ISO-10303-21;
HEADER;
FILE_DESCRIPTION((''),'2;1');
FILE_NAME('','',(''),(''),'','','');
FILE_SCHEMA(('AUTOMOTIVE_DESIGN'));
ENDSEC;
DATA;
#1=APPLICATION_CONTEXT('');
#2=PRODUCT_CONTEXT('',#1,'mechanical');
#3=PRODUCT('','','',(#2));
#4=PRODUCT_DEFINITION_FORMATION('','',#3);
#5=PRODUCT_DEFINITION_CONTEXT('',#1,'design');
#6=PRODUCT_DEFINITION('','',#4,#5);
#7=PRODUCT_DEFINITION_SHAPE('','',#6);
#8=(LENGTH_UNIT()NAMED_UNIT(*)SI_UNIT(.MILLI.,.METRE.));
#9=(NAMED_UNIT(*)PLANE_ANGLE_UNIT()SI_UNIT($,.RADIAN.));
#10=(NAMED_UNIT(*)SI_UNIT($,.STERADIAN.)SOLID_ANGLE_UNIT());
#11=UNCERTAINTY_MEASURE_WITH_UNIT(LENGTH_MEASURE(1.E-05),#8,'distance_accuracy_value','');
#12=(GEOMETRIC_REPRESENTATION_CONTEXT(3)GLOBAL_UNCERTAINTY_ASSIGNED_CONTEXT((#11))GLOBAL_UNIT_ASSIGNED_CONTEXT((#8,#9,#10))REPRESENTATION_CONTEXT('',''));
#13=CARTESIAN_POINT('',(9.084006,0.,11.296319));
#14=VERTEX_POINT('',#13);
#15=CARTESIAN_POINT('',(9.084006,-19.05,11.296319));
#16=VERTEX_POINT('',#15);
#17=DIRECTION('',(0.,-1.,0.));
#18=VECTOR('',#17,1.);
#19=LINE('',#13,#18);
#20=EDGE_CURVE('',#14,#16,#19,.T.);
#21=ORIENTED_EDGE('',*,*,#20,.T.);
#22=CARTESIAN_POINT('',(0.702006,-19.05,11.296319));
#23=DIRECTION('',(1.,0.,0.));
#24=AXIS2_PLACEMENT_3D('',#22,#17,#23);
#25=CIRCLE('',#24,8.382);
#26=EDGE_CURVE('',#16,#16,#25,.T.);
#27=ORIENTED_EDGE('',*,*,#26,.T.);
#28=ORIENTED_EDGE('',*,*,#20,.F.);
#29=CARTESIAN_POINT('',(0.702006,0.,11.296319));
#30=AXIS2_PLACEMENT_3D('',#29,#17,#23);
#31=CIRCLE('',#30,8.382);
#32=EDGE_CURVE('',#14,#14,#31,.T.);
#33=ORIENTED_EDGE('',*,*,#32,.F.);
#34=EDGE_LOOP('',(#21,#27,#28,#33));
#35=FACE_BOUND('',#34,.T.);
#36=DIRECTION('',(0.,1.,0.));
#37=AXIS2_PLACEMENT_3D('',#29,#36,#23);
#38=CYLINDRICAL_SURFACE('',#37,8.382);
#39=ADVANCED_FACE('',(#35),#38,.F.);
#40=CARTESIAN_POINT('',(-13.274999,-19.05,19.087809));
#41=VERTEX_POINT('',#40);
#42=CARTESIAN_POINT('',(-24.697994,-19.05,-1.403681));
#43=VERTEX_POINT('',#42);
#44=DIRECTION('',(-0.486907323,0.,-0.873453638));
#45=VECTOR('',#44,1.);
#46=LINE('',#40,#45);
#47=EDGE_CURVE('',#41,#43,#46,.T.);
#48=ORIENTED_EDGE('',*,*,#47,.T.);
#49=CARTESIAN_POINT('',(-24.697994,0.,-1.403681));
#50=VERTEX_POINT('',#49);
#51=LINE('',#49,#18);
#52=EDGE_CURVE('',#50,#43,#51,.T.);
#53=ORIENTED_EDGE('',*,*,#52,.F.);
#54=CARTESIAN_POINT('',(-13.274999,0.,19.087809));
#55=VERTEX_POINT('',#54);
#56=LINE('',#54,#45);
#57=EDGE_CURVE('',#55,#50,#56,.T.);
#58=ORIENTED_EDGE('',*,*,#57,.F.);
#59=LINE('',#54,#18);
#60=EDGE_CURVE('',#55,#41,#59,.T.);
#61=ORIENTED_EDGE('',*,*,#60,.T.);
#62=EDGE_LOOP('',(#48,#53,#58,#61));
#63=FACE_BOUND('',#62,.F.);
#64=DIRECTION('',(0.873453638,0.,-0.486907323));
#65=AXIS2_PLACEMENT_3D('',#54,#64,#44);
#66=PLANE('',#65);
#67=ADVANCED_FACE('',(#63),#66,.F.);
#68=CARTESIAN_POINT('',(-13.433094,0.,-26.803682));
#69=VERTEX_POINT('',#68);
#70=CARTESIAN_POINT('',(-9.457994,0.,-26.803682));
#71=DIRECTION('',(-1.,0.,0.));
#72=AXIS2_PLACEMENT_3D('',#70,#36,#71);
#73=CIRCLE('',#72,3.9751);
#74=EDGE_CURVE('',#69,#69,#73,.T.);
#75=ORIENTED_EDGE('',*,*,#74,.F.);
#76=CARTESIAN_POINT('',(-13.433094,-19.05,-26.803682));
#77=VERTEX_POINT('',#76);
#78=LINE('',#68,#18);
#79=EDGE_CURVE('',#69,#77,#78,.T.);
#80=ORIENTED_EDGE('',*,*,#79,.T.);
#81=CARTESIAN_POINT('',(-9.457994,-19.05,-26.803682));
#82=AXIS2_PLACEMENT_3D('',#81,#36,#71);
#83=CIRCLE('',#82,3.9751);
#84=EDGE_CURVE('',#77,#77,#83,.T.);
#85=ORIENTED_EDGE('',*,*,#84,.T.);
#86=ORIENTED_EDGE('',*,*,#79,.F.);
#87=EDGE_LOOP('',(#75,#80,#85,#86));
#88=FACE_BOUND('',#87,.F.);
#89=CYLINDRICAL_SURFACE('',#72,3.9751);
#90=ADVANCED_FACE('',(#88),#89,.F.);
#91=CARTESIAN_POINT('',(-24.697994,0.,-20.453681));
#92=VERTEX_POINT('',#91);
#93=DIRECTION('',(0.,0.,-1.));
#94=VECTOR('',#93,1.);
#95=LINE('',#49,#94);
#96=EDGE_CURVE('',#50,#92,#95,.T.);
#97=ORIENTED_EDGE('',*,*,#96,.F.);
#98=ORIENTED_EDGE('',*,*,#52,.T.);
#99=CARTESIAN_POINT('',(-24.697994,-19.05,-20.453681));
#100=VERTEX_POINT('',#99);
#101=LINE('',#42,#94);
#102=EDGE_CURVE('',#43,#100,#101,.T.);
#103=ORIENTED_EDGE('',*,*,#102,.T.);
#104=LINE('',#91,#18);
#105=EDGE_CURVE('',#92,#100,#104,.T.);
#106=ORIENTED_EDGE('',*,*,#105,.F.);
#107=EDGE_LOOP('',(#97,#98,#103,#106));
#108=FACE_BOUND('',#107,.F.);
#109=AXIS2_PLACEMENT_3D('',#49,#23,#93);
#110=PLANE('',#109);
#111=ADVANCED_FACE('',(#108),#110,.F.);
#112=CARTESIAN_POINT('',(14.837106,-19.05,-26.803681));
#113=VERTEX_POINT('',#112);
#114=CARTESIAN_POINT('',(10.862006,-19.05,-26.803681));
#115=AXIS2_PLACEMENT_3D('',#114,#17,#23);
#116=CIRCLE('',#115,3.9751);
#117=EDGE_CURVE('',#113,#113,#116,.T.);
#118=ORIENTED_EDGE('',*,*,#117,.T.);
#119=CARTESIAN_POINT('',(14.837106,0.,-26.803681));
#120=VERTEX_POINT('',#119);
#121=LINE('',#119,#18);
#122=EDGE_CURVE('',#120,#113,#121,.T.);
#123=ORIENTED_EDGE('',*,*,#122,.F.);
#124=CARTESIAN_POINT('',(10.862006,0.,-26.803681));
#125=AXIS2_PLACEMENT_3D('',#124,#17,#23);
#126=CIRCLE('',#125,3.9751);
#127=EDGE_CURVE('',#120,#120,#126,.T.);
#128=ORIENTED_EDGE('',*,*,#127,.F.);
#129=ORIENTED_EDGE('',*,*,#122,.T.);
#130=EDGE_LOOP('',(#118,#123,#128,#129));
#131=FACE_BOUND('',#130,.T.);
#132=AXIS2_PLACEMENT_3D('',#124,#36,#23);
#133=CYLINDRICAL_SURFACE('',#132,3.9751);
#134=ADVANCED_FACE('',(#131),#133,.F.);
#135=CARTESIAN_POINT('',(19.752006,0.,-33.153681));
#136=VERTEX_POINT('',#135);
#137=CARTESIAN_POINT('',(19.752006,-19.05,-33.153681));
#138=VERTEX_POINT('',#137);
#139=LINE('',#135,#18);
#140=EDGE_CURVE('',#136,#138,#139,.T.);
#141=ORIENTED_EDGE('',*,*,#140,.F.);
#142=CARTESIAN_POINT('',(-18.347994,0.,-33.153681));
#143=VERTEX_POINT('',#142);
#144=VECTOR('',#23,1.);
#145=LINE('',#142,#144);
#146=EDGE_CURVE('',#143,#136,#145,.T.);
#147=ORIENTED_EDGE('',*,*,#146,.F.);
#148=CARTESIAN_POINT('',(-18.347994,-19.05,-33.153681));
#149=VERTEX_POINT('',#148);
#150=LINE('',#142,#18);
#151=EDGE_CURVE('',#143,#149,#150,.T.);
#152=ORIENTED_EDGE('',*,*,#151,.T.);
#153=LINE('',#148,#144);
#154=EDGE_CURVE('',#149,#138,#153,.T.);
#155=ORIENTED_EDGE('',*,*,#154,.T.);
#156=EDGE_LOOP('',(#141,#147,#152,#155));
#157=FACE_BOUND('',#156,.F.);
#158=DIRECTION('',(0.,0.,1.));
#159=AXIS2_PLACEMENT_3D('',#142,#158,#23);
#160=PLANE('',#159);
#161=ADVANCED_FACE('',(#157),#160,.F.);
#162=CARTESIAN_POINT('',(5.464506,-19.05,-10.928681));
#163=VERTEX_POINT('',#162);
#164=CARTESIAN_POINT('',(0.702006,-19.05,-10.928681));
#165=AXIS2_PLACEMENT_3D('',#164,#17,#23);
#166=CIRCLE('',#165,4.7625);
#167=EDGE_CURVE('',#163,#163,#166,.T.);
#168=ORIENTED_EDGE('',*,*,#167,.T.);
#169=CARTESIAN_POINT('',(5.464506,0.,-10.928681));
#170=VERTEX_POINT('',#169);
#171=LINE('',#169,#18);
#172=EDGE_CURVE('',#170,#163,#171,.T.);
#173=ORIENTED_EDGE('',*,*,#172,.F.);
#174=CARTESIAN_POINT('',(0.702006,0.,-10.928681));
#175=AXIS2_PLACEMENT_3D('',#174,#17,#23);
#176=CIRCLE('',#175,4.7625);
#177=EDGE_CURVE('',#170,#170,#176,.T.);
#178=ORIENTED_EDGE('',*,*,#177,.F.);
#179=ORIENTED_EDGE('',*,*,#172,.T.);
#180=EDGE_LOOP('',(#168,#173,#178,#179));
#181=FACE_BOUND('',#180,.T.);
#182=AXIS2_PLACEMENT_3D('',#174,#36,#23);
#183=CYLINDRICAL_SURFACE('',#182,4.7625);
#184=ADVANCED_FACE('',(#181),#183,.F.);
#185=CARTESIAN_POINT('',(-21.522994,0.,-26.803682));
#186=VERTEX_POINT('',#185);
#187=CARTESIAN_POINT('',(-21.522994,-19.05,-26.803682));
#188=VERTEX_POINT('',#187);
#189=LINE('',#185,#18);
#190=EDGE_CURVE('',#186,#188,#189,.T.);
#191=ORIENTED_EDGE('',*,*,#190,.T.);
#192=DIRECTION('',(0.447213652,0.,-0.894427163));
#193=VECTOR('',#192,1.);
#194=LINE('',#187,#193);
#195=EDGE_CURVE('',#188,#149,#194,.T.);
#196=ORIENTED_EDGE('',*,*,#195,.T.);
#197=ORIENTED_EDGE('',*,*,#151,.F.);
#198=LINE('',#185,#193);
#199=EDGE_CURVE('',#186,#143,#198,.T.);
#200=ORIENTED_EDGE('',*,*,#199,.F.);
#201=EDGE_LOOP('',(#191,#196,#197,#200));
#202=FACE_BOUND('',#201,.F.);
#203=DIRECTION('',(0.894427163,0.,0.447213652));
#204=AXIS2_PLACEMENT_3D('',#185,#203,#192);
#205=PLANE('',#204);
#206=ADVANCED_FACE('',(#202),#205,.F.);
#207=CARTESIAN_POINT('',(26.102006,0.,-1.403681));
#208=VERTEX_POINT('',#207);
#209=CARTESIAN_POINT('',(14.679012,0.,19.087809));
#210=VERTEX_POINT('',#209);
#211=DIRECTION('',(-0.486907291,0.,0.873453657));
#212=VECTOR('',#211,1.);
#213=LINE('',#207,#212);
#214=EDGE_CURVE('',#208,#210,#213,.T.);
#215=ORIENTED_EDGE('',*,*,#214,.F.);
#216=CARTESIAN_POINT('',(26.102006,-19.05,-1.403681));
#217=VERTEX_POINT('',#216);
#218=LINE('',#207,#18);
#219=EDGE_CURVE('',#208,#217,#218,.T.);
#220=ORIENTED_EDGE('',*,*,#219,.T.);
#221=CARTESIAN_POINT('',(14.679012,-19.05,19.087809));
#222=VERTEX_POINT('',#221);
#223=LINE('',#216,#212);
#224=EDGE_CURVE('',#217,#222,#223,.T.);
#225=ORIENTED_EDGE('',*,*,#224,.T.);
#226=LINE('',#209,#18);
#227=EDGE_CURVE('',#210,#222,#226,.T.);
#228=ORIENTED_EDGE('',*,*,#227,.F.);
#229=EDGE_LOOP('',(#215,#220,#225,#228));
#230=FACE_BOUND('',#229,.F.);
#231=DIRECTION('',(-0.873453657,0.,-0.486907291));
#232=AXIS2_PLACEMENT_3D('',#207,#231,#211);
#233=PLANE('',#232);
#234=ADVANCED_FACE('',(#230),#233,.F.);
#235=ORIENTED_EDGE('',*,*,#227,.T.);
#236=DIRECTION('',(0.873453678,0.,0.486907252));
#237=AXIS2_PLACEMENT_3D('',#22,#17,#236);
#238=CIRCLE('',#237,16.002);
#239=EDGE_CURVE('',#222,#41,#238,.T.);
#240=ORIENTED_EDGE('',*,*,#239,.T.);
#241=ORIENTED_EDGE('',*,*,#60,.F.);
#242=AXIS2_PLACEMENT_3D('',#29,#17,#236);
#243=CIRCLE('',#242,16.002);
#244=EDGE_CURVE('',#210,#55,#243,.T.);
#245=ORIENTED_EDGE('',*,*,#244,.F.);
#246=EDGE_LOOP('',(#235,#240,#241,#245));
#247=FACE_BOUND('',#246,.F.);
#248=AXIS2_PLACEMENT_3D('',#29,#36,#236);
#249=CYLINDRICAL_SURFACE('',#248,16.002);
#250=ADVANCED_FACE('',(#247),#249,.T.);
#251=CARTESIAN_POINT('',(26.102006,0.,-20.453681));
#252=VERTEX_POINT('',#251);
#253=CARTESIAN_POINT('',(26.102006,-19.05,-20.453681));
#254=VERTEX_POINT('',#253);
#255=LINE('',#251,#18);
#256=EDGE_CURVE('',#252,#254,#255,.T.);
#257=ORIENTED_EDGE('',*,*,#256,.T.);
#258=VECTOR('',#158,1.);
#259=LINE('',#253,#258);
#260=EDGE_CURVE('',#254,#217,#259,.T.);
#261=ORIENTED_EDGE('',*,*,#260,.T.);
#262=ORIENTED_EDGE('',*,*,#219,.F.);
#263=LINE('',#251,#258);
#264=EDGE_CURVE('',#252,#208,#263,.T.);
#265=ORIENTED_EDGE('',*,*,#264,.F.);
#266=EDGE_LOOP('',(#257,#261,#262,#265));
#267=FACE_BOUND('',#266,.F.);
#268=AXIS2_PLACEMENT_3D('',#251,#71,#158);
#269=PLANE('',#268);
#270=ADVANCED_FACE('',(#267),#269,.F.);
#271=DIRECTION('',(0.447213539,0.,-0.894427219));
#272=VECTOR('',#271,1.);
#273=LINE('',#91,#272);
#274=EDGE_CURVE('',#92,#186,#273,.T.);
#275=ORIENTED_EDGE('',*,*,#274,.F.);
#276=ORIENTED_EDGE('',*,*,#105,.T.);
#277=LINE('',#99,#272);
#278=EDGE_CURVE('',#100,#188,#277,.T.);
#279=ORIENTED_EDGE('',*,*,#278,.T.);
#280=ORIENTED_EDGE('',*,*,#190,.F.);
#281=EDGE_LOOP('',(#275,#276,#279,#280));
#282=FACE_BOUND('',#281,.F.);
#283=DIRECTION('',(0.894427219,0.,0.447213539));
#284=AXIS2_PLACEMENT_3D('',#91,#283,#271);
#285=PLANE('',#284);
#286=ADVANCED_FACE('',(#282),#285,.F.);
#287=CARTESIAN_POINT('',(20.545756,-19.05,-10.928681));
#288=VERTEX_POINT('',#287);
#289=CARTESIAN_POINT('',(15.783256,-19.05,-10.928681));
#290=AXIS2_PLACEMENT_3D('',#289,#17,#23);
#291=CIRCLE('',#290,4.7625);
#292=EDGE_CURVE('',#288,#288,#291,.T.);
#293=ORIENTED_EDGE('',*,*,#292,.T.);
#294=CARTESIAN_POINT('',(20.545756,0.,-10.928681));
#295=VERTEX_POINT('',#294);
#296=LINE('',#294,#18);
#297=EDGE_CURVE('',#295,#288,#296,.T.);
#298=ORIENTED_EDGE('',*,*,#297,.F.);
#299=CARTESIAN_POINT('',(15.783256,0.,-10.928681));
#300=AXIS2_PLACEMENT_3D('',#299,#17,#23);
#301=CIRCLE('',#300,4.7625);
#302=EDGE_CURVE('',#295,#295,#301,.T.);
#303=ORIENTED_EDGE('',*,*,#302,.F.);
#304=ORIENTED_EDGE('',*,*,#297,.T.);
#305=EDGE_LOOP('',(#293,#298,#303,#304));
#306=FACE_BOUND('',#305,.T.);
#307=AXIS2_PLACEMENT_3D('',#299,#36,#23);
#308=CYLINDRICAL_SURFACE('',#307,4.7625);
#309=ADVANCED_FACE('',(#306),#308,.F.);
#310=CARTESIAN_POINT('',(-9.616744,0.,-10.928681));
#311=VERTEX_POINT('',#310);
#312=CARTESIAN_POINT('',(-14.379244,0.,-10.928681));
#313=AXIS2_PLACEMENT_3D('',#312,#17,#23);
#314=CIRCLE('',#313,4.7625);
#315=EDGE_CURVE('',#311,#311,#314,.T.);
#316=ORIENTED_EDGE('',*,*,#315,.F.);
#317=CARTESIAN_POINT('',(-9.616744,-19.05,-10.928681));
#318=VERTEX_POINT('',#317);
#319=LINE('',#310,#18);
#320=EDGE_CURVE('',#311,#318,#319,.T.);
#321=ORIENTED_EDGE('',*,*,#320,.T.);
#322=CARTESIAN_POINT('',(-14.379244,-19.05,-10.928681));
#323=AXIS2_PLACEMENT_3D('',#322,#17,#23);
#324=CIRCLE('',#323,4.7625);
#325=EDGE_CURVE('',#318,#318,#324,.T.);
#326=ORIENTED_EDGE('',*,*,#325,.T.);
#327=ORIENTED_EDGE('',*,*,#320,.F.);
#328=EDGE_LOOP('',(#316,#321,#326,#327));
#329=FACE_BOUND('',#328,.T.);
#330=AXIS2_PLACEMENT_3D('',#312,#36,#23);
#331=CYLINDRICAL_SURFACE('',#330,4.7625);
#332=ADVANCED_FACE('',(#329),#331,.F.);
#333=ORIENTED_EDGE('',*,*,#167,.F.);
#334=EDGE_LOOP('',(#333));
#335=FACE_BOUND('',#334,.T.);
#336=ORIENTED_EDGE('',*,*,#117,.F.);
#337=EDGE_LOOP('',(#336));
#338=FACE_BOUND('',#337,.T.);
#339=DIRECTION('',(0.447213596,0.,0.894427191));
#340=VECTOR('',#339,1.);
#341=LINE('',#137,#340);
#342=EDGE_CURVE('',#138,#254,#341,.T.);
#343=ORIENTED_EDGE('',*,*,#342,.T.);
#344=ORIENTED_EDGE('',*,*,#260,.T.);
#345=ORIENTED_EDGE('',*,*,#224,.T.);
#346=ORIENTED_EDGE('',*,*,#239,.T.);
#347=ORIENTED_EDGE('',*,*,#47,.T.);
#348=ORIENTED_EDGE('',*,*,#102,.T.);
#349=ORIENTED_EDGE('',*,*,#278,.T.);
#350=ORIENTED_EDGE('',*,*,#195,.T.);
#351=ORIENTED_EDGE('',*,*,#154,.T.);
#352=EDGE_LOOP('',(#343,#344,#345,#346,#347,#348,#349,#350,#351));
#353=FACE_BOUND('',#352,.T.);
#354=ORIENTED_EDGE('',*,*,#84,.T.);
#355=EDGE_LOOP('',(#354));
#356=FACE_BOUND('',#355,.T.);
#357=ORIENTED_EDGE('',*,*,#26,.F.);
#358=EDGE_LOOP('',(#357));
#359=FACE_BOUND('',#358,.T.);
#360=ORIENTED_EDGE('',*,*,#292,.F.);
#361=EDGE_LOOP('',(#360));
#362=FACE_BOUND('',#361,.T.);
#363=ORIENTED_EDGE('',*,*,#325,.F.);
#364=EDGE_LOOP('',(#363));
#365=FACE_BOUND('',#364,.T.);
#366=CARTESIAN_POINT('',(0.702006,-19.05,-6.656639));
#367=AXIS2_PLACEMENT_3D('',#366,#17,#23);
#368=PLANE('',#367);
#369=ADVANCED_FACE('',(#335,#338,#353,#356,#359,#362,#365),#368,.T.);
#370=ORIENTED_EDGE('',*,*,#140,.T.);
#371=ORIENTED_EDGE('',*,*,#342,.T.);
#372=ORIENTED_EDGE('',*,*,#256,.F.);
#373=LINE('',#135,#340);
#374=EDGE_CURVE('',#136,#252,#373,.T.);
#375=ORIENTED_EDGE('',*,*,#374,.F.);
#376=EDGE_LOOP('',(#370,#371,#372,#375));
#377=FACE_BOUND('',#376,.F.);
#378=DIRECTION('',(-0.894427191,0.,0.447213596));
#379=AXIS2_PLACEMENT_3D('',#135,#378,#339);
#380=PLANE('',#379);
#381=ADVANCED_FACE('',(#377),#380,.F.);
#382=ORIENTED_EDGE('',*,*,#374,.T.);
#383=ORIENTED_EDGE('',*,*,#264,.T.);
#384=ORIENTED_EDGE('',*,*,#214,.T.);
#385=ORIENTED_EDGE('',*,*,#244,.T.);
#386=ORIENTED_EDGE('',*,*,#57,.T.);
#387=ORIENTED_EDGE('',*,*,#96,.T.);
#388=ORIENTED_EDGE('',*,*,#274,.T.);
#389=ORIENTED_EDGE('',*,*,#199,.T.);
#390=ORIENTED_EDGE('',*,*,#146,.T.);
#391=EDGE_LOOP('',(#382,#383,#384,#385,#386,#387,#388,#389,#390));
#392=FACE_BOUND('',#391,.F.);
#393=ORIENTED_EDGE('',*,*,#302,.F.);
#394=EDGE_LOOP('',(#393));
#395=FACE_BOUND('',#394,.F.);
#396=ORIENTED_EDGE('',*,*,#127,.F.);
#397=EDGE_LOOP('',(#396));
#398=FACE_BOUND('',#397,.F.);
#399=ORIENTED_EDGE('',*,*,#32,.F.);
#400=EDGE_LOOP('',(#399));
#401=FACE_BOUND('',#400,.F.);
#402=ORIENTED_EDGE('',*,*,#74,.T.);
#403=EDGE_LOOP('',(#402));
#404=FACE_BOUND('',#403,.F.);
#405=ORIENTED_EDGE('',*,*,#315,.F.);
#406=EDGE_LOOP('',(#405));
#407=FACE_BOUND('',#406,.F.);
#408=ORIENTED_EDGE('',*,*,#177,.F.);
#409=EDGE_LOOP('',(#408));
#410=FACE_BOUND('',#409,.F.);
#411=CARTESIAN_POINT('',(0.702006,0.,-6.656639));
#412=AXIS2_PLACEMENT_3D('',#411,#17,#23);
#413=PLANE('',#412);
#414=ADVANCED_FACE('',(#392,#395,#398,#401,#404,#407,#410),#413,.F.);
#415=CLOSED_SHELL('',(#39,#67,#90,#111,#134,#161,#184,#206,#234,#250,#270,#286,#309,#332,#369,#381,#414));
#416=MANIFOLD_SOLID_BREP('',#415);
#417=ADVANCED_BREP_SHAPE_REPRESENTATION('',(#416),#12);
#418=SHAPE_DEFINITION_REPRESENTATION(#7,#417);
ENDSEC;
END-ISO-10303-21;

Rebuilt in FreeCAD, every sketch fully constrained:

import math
import FreeCAD as App
import Part
import Sketcher
Q = App.Units.Quantity

doc = App.newDocument("Part")
body = doc.addObject("PartDesign::Body", "Body")

# Sketch on XZ plane
sketch1 = body.newObject("Sketcher::SketchObject", "Sketch")
sketch1.AttachmentSupport = (doc.getObject("XZ_Plane"), [""])
sketch1.MapMode = "FlatFace"
sketch1.addGeometry([
    Part.LineSegment(App.Vector(-21.5, -26.8, 0), App.Vector(-18.3, -33.2, 0)),  # 0
    Part.LineSegment(App.Vector(-18.3, -33.2, 0), App.Vector(19.8, -33.2, 0)),  # 1
    Part.LineSegment(App.Vector(19.8, -33.2, 0), App.Vector(26.1, -20.5, 0)),  # 2
    Part.LineSegment(App.Vector(26.1, -20.5, 0), App.Vector(26.1, -1.4, 0)),  # 3
    Part.LineSegment(App.Vector(26.1, -1.4, 0), App.Vector(14.7, 19.1, 0)),  # 4
    Part.ArcOfCircle(Part.Circle(App.Vector(0.7, 11.3, 0), App.Vector(0, 0, 1), 16), math.radians(29), math.radians(151)),  # 5
    Part.LineSegment(App.Vector(-13.3, 19.1, 0), App.Vector(-24.7, -1.4, 0)),  # 6
    Part.LineSegment(App.Vector(-24.7, -1.4, 0), App.Vector(-24.7, -20.5, 0)),  # 7
    Part.LineSegment(App.Vector(-24.7, -20.5, 0), App.Vector(-21.5, -26.8, 0)),  # 8
    Part.Circle(App.Vector(-9.5, -26.8, 0), App.Vector(0, 0, 1), 4),  # 9
    Part.Circle(App.Vector(-14.4, -10.9, 0), App.Vector(0, 0, 1), 4.8),  # 10
    Part.Circle(App.Vector(10.9, -26.8, 0), App.Vector(0, 0, 1), 4),  # 11
    Part.Circle(App.Vector(0.7, -10.9, 0), App.Vector(0, 0, 1), 4.8),  # 12
    Part.Circle(App.Vector(15.8, -10.9, 0), App.Vector(0, 0, 1), 4.8),  # 13
    Part.Circle(App.Vector(0.7, 11.3, 0), App.Vector(0, 0, 1), 8.4),  # 14
], False)
sketch1.addConstraint([
    Sketcher.Constraint("Coincident", 0, 2, 1, 1),
    Sketcher.Constraint("Coincident", 1, 2, 2, 1),
    Sketcher.Constraint("Coincident", 2, 2, 3, 1),
    Sketcher.Constraint("Coincident", 3, 2, 4, 1),
    Sketcher.Constraint("Tangent", 4, 2, 5, 1),
    Sketcher.Constraint("Tangent", 5, 2, 6, 1),
    Sketcher.Constraint("Coincident", 6, 2, 7, 1),
    Sketcher.Constraint("Coincident", 7, 2, 8, 1),
    Sketcher.Constraint("Coincident", 8, 2, 0, 1),
    Sketcher.Constraint("Horizontal", 1),
    Sketcher.Constraint("Vertical", 3),
    Sketcher.Constraint("Vertical", 7),
    Sketcher.Constraint("Coincident", 14, 3, 5, 3),
    Sketcher.Constraint("Equal", 9, 11),
    Sketcher.Constraint("Equal", 10, 12),
    Sketcher.Constraint("Equal", 12, 13),
    Sketcher.Constraint("Parallel", 0, 8),
    Sketcher.Constraint("Horizontal", 9, 3, 11, 3),
    Sketcher.Constraint("Horizontal", 10, 3, 12, 3),
    Sketcher.Constraint("Horizontal", 12, 3, 13, 3),
    Sketcher.Constraint("Horizontal", 4, 2, 5, 2),
    Sketcher.Constraint("Horizontal", 3, 2, 6, 2),
    Sketcher.Constraint("Horizontal", 2, 2, 7, 2),
    Sketcher.Constraint("Horizontal", 11, 3, 8, 2),
    Sketcher.Constraint("Vertical", 5, 3, 12, 3),
    Sketcher.Constraint("Equal", 0, 8),
    Sketcher.Constraint("Diameter", 14, Q("0.66 in")),
    Sketcher.Constraint("Radius", 5, Q("0.63 in")),
    Sketcher.Constraint("Diameter", 9, Q("0.313 in")),
    Sketcher.Constraint("Diameter", 10, Q("0.375 in")),
    Sketcher.Constraint("DistanceX", 1, 1, 1, 2, Q("1.5 in")),
    Sketcher.Constraint("DistanceX", 12, 3, 2, 2, Q("1 in")),
    Sketcher.Constraint("DistanceY", 8, 2, 6, 2, Q("1 in")),
    Sketcher.Constraint("DistanceY", 3, 1, 3, 2, Q("0.75 in")),
    Sketcher.Constraint("DistanceX", 9, 3, 5, 3, Q("0.4 in")),
    Sketcher.Constraint("DistanceY", 9, 3, 5, 3, Q("1.5000001 in")),
    Sketcher.Constraint("DistanceX", 9, 3, 11, 3, Q("0.8 in")),
    Sketcher.Constraint("DistanceX", 0, 2, 9, 3, Q("0.35 in")),
    Sketcher.Constraint("DistanceY", 9, 3, 10, 3, Q("0.625 in")),
    Sketcher.Constraint("DistanceX", 10, 3, 5, 3, Q("0.59375 in")),
    Sketcher.Constraint("DistanceX", 12, 3, 13, 3, Q("0.59375 in")),
    Sketcher.Constraint("DistanceX", 5, 2, -1, 1, Q("13.274999 mm")),
    Sketcher.Constraint("DistanceY", -1, 1, 5, 3, Q("11.296319 mm")),
])
pad1 = body.newObject("PartDesign::Pad", "Pad")
pad1.Profile = sketch1
pad1.Length = Q("0.75 in")

doc.recompute()
